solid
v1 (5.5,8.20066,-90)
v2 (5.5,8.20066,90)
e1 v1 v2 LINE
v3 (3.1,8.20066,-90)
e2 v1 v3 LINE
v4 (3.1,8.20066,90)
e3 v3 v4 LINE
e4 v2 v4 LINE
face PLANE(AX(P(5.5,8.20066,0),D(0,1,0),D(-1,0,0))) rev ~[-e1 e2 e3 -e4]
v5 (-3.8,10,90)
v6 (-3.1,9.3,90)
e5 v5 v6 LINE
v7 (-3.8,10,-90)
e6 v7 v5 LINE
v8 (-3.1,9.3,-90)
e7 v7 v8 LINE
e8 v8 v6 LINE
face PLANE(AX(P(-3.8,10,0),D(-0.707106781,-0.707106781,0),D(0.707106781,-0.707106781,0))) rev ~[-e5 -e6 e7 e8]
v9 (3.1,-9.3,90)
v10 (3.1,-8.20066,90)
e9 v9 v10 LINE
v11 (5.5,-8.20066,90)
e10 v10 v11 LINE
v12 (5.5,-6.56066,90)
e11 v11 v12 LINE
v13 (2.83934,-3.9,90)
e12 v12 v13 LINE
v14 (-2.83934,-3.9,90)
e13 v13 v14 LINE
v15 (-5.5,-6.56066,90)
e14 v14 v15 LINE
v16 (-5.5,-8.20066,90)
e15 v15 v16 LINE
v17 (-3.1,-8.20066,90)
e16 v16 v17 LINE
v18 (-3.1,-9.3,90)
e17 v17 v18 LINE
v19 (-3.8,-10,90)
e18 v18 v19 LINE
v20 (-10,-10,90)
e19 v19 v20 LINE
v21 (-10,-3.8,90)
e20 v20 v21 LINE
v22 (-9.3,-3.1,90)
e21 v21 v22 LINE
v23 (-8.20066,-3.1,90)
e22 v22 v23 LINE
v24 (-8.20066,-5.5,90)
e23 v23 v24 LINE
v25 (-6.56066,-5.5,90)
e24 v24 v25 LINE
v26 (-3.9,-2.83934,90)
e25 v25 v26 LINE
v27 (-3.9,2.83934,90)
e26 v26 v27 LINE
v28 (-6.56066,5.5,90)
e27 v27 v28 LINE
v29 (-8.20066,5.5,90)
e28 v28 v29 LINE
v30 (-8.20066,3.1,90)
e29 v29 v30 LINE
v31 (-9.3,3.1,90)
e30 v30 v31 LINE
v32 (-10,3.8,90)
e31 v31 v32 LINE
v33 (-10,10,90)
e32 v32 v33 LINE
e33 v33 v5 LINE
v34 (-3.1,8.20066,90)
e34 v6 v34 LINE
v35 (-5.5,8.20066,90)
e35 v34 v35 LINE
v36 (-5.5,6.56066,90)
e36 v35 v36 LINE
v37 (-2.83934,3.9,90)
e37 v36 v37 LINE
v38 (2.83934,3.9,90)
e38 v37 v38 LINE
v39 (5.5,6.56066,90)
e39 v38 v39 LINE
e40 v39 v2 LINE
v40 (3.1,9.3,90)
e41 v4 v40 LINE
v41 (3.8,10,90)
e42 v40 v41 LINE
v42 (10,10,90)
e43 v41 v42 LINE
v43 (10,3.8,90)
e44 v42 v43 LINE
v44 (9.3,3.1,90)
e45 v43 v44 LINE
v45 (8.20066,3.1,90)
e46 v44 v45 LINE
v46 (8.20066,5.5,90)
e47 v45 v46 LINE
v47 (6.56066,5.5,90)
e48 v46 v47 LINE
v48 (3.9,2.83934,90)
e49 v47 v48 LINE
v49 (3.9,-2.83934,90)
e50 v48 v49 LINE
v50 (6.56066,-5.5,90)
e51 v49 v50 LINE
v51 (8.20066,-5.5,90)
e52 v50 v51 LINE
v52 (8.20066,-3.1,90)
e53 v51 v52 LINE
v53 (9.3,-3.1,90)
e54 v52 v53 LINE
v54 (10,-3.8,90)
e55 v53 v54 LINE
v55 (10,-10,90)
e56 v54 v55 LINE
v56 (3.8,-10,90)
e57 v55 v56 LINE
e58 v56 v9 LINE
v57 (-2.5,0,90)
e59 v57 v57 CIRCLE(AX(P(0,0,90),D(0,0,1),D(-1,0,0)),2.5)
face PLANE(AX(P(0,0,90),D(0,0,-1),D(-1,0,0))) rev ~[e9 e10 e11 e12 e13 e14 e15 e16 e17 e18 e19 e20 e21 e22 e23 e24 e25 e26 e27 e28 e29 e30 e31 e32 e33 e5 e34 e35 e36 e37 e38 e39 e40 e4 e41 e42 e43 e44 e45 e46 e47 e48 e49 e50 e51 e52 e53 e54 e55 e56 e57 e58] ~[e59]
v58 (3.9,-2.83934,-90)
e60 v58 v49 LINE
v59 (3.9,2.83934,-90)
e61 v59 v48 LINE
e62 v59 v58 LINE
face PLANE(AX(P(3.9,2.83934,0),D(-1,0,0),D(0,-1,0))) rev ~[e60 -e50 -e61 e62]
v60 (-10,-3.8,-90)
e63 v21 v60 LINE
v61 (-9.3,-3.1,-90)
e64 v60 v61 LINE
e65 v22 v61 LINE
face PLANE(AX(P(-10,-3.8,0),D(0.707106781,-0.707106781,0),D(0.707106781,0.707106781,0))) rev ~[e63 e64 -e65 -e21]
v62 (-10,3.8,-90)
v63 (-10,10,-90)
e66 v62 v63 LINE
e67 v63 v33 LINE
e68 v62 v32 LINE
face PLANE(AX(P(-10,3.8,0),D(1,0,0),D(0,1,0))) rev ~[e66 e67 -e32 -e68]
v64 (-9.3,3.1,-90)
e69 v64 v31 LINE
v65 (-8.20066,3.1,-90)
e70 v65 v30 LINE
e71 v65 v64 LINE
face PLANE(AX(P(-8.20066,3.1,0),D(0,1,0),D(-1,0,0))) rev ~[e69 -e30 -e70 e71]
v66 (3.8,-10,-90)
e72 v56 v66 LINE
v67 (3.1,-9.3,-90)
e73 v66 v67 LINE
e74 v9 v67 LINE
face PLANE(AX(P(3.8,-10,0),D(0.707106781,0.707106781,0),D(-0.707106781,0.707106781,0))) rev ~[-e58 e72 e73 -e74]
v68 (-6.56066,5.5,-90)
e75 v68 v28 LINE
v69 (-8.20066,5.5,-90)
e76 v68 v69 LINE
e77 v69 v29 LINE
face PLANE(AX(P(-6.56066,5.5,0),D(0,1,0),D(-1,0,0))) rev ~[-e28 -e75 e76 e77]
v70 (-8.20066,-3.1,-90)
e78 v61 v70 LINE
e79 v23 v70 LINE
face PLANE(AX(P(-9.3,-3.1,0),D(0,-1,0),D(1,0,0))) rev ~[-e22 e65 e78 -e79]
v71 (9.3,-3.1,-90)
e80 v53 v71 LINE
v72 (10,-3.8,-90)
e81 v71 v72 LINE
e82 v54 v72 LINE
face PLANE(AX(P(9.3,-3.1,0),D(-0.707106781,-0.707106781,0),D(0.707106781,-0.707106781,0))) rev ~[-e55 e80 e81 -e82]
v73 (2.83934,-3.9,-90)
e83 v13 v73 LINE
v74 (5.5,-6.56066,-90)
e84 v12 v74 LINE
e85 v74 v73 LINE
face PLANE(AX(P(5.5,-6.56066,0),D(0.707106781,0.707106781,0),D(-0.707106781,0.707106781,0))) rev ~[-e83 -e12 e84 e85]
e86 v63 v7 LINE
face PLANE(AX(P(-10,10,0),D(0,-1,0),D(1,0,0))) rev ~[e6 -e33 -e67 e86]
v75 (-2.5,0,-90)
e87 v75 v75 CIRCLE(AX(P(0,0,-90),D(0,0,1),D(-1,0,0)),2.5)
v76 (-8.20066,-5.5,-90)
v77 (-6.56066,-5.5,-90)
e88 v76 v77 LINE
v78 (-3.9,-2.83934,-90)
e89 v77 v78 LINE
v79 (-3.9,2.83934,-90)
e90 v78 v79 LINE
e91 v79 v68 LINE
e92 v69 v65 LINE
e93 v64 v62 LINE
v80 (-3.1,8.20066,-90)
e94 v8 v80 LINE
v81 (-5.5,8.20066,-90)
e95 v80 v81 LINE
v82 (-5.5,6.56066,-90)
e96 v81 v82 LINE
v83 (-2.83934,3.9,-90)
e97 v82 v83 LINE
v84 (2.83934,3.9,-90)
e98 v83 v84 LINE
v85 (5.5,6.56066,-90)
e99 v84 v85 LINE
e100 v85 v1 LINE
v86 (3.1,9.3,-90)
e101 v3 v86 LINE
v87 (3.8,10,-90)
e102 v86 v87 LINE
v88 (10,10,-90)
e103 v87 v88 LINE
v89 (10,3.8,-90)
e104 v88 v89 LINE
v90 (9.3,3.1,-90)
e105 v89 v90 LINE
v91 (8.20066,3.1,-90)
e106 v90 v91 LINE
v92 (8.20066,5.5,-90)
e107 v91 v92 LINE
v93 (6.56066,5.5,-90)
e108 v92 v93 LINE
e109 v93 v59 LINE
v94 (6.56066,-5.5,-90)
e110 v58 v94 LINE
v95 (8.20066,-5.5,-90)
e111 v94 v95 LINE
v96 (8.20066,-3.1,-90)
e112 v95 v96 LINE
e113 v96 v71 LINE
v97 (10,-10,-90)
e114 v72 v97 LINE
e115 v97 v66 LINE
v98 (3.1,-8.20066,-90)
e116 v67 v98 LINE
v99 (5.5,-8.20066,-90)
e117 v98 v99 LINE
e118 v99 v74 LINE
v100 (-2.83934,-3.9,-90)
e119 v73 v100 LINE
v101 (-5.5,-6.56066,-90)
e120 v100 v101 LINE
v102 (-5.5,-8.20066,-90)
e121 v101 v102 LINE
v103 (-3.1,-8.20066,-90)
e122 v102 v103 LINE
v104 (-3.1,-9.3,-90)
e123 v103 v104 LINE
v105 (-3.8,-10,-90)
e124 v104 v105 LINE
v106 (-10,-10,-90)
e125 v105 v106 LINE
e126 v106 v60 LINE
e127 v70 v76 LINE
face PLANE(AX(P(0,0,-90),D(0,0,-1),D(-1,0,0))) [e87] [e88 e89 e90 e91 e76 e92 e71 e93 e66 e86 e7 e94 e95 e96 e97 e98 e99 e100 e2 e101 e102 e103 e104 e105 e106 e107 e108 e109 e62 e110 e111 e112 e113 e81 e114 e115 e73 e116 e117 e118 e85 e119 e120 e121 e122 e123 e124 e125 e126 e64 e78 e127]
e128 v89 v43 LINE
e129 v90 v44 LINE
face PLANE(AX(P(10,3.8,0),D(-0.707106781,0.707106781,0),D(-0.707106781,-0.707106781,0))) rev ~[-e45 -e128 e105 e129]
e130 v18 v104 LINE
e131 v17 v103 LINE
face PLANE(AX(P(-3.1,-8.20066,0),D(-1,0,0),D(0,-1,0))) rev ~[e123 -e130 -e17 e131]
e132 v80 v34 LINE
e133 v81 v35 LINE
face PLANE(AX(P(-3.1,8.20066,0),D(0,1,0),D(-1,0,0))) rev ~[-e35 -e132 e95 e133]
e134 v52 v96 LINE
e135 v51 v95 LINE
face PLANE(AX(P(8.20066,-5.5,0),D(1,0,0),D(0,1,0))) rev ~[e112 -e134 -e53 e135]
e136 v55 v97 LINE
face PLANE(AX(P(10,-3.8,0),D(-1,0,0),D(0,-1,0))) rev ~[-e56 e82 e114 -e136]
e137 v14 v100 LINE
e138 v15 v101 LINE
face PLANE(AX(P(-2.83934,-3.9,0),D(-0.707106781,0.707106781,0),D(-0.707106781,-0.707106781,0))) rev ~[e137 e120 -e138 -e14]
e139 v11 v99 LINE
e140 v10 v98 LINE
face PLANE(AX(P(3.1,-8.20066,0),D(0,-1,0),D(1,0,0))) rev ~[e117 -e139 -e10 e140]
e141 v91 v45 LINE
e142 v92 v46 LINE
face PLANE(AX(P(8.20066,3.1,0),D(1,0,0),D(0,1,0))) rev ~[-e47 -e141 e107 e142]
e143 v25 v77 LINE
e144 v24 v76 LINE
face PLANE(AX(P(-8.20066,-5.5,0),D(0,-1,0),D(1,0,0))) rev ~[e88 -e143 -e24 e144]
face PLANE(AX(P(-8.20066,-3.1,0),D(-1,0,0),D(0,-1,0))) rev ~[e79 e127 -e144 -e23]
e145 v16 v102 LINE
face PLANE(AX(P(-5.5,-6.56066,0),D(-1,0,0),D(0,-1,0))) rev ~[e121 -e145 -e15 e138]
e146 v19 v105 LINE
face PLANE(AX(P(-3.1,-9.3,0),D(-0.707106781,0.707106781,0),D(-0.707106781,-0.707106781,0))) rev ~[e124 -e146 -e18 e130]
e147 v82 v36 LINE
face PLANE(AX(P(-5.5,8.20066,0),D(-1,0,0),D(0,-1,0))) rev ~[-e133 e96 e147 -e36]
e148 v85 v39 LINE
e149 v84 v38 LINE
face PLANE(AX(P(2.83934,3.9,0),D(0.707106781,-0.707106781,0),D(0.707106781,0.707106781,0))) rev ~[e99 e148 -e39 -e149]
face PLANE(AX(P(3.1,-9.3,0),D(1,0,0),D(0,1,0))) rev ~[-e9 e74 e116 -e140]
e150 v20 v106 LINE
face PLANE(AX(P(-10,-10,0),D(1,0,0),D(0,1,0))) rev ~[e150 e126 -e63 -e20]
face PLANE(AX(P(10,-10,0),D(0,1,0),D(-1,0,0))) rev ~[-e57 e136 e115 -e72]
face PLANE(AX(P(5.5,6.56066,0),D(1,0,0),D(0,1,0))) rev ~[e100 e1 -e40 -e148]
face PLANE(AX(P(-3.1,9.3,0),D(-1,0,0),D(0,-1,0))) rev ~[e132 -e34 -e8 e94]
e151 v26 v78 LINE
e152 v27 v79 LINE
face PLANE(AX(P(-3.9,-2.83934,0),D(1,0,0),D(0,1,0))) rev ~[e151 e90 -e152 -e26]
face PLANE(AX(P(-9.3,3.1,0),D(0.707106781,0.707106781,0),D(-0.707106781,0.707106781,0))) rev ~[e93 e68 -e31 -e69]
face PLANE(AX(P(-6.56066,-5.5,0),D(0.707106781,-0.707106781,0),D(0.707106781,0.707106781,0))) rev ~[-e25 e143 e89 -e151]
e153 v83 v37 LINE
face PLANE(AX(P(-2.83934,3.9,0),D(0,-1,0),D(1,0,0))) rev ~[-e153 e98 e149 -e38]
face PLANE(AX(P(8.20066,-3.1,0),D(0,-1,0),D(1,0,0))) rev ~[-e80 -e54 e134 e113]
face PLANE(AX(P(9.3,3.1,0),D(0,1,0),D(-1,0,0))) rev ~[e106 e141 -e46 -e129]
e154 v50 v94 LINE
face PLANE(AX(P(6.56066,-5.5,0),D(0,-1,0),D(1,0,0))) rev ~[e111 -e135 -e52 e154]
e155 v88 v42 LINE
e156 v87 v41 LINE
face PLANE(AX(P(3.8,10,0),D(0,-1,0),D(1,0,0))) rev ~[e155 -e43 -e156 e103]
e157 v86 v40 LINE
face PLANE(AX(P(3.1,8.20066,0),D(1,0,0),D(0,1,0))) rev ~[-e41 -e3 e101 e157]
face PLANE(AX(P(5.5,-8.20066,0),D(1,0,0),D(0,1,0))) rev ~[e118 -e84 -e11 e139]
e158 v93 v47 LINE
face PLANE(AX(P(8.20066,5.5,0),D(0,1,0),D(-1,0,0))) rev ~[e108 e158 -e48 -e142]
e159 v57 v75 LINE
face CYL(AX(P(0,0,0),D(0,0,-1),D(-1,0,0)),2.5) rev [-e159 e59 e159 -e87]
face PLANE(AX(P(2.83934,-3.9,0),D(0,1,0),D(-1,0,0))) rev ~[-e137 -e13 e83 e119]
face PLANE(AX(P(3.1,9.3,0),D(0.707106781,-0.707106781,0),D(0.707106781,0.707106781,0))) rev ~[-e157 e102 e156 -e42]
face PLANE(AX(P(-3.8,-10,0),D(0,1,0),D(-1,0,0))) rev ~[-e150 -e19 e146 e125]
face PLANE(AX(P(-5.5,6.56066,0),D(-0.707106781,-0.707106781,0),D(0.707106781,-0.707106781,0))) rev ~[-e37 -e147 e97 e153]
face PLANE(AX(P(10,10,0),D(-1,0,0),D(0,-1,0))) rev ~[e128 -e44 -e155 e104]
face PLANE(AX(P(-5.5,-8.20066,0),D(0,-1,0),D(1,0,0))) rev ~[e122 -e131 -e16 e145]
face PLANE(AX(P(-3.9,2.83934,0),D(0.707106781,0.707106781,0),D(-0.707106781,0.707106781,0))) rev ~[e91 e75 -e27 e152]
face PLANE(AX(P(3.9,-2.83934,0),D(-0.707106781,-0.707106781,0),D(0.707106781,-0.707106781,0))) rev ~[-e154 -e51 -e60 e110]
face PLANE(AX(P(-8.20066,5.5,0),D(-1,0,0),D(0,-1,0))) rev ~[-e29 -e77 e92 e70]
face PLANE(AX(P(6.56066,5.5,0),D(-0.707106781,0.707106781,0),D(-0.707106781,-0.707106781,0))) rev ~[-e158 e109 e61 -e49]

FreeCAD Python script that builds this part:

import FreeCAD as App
import Part
import Sketcher

V = App.Vector
Q = App.Units.Quantity


def add_polygon(sketch, points):
    """Adds a closed chain of lines whose ends are joined by coincident constraints."""
    first, n = sketch.GeometryCount, len(points)
    for a, b in zip(points, points[1:] + points[:1]):
        sketch.addGeometry(Part.LineSegment(App.Vector(*a, 0), App.Vector(*b, 0)), False)
    for i in range(n):
        sketch.addConstraint(Sketcher.Constraint("Coincident", first + i, 2, first + (i + 1) % n, 1))

doc = App.newDocument("Part")
body = doc.addObject("PartDesign::Body", "Body")

# Sketch on XY plane
sketch1 = doc.addObject("Sketcher::SketchObject", "Sketch")
body.addObject(sketch1)
sketch1.AttachmentSupport = (doc.XY_Plane, [""])
sketch1.MapMode = "FlatFace"
add_polygon(sketch1, [(6.6, -5.5), (3.9, -2.8), (3.9, 2.8), (6.6, 5.5), (8.2, 5.5), (8.2, 3.1), (9.3, 3.1), (10, 3.8), (10, 10), (3.8, 10), (3.1, 9.3), (3.1, 8.2), (5.5, 8.2), (5.5, 6.6), (2.8, 3.9), (-2.8, 3.9), (-5.5, 6.6), (-5.5, 8.2), (-3.1, 8.2), (-3.1, 9.3), (-3.8, 10), (-10, 10), (-10, 3.8), (-9.3, 3.1), (-8.2, 3.1), (-8.2, 5.5), (-6.6, 5.5), (-3.9, 2.8), (-3.9, -2.8), (-6.6, -5.5), (-8.2, -5.5), (-8.2, -3.1), (-9.3, -3.1), (-10, -3.8), (-10, -10), (-3.8, -10), (-3.1, -9.3), (-3.1, -8.2), (-5.5, -8.2), (-5.5, -6.6), (-2.8, -3.9), (2.8, -3.9), (5.5, -6.6), (5.5, -8.2), (3.1, -8.2), (3.1, -9.3), (3.8, -10), (10, -10), (10, -3.8), (9.3, -3.1), (8.2, -3.1), (8.2, -5.5)])  # lines 0-51
sketch1.addGeometry(Part.Circle(V(0, 0, 0), V(0, 0, 1), 2.5), False)  # 52
sketch1.addConstraint([
    Sketcher.Constraint("Vertical", 1),
    Sketcher.Constraint("Horizontal", 3),
    Sketcher.Constraint("Vertical", 4),
    Sketcher.Constraint("Horizontal", 5),
    Sketcher.Constraint("Vertical", 7),
    Sketcher.Constraint("Horizontal", 8),
    Sketcher.Constraint("Vertical", 10),
    Sketcher.Constraint("Horizontal", 11),
    Sketcher.Constraint("Vertical", 12),
    Sketcher.Constraint("Horizontal", 14),
    Sketcher.Constraint("Vertical", 16),
    Sketcher.Constraint("Horizontal", 17),
    Sketcher.Constraint("Vertical", 18),
    Sketcher.Constraint("Horizontal", 20),
    Sketcher.Constraint("Vertical", 21),
    Sketcher.Constraint("Horizontal", 23),
    Sketcher.Constraint("Vertical", 24),
    Sketcher.Constraint("Horizontal", 25),
    Sketcher.Constraint("Vertical", 27),
    Sketcher.Constraint("Horizontal", 29),
    Sketcher.Constraint("Vertical", 30),
    Sketcher.Constraint("Horizontal", 31),
    Sketcher.Constraint("Vertical", 33),
    Sketcher.Constraint("Horizontal", 34),
    Sketcher.Constraint("Vertical", 36),
    Sketcher.Constraint("Horizontal", 37),
    Sketcher.Constraint("Vertical", 38),
    Sketcher.Constraint("Horizontal", 40),
    Sketcher.Constraint("Vertical", 42),
    Sketcher.Constraint("Horizontal", 43),
    Sketcher.Constraint("Vertical", 44),
    Sketcher.Constraint("Horizontal", 46),
    Sketcher.Constraint("Vertical", 47),
    Sketcher.Constraint("Horizontal", 49),
    Sketcher.Constraint("Vertical", 50),
    Sketcher.Constraint("Horizontal", 51),
    Sketcher.Constraint("Coincident", 52, 3, -1, 1),
    Sketcher.Constraint("Symmetric", 0, 2, 26, 2, -1, 1),
    Sketcher.Constraint("Symmetric", 2, 2, 28, 2, -1, 1),
    Sketcher.Constraint("Symmetric", 4, 2, 30, 2, -1, 1),
    Sketcher.Constraint("Symmetric", 6, 2, 32, 2, -1, 1),
    Sketcher.Constraint("Symmetric", 8, 2, 34, 2, -1, 1),
    Sketcher.Constraint("Symmetric", 9, 2, 35, 2, -1, 1),
    Sketcher.Constraint("Symmetric", 11, 2, 37, 2, -1, 1),
    Sketcher.Constraint("Symmetric", 13, 2, 39, 2, -1, 1),
    Sketcher.Constraint("Symmetric", 15, 2, 41, 2, -1, 1),
    Sketcher.Constraint("Symmetric", 17, 2, 43, 2, -1, 1),
    Sketcher.Constraint("Symmetric", 19, 2, 45, 2, -1, 1),
    Sketcher.Constraint("Symmetric", 21, 2, 47, 2, -1, 1),
    Sketcher.Constraint("Symmetric", 22, 2, 48, 2, -1, 1),
    Sketcher.Constraint("Symmetric", 24, 2, 50, 2, -1, 1),
    Sketcher.Constraint("Symmetric", 12, 2, 15, 2, -2),
    Sketcher.Constraint("Symmetric", 10, 2, 17, 2, -2),
    Sketcher.Constraint("Symmetric", 8, 2, 19, 2, -2),
    Sketcher.Constraint("Symmetric", 6, 2, 21, 2, -2),
    Sketcher.Constraint("Symmetric", 5, 2, 22, 2, -2),
    Sketcher.Constraint("Symmetric", 3, 2, 24, 2, -2),
    Sketcher.Constraint("Perpendicular", 0, 2),
    Sketcher.Constraint("Parallel", 2, 6),
    Sketcher.Constraint("Parallel", 6, 9),
    Sketcher.Constraint("Parallel", 9, 13),
    Sketcher.Constraint("Perpendicular", 13, 15),
    Sketcher.Constraint("Parallel", 15, 19),
    Sketcher.Constraint("Parallel", 19, 22),
    Sketcher.Constraint("Parallel", 22, 26),
    Sketcher.Constraint("Perpendicular", 26, 28),
    Sketcher.Constraint("Parallel", 28, 32),
    Sketcher.Constraint("Parallel", 35, 39),
    Sketcher.Constraint("Perpendicular", 39, 41),
    Sketcher.Constraint("Parallel", 41, 45),
    Sketcher.Constraint("Horizontal", 1, 2, 26, 2),
    Sketcher.Constraint("Equal", 40, 1),
    Sketcher.Constraint("Equal", 43, 4),
    Sketcher.Constraint("Equal", 46, 7),
    Sketcher.Constraint("Equal", 49, 10),
    Sketcher.Constraint("Equal", 51, 12),
    Sketcher.Constraint("Equal", 6, 9),
    Sketcher.Constraint("Equal", 2, 13),
    Sketcher.Constraint("Diameter", 52, Q("5 mm")),
    Sketcher.Constraint("DistanceX", 8, 2, 8, 1, Q("6.2 mm")),
    Sketcher.Constraint("DistanceX", 11, 1, 11, 2, Q("2.4 mm")),
    Sketcher.Constraint("DistanceX", -1, 1, 6, 2, Q("10 mm")),
    Sketcher.Constraint("DistanceX", 3, 1, 3, 2, Q("1.64 mm")),
    Sketcher.Constraint("DistanceX", -1, 1, 0, 2, Q("3.9 mm")),
    Sketcher.Constraint("DistanceY", -1, 1, 2, 2, Q("5.5 mm")),
    Sketcher.Constraint("DistanceX", 5, 1, 5, 2, Q("1.09934 mm")),
])
pad1 = doc.addObject("PartDesign::Pad", "Pad")
body.addObject(pad1)
pad1.Profile = sketch1
pad1.Length = 180
pad1.Midplane = True

doc.recompute()
